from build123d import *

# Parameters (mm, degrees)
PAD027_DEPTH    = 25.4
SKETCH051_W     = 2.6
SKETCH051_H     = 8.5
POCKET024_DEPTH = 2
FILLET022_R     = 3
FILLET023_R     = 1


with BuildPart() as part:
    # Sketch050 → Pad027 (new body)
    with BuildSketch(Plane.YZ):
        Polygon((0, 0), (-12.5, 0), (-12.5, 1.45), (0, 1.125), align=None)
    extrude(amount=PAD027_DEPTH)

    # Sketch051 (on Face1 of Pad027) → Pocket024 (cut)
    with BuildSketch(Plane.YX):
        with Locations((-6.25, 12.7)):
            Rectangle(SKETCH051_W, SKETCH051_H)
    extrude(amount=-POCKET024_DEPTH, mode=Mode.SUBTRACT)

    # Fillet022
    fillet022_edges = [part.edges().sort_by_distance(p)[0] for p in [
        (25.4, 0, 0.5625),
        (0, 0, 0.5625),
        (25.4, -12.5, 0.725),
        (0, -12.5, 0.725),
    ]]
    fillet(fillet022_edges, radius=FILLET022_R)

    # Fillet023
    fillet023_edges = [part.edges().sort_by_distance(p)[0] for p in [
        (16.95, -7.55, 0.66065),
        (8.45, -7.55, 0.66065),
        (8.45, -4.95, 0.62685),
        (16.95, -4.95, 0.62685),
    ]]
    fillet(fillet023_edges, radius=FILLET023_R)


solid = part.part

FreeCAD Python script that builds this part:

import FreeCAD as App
import Part
import Sketcher
from FreeCAD import Vector


def edges_at(feature, points):
    """Names of the edges that pass closest to the given points."""
    edges = feature.Shape.Edges
    near = lambda p: min(range(len(edges)), key=lambda i: edges[i].distToShape(Part.Vertex(*p))[0])
    return sorted({f"Edge{near(p) + 1}" for p in points})

doc = App.newDocument("Part")
body = doc.addObject("PartDesign::Body", "Body")

sketch1 = doc.addObject("Sketcher::SketchObject", "Sketch")
body.addObject(sketch1)
sketch1.AttachmentSupport = (doc.YZ_Plane, [""])
sketch1.MapMode = "FlatFace"
sketch1.addGeometry(Part.LineSegment(Vector(-12.5, 0, 0), Vector(0, 0, 0)), False)
sketch1.addGeometry(Part.LineSegment(Vector(0, 0, 0), Vector(0, 1.1, 0)), False)
sketch1.addGeometry(Part.LineSegment(Vector(0, 1.1, 0), Vector(-12.5, 1.4, 0)), False)
sketch1.addGeometry(Part.LineSegment(Vector(-12.5, 1.4, 0), Vector(-12.5, 0, 0)), False)
sketch1.addConstraint(Sketcher.Constraint("Coincident", 0, 2, 1, 1))
sketch1.addConstraint(Sketcher.Constraint("Coincident", 1, 2, 2, 1))
sketch1.addConstraint(Sketcher.Constraint("Coincident", 2, 2, 3, 1))
sketch1.addConstraint(Sketcher.Constraint("Coincident", 3, 2, 0, 1))
sketch1.addConstraint(Sketcher.Constraint("Horizontal", 0))
sketch1.addConstraint(Sketcher.Constraint("Vertical", 1))
sketch1.addConstraint(Sketcher.Constraint("Vertical", 3))
sketch1.addConstraint(Sketcher.Constraint("Coincident", 0, 2, -1, 1))
sketch1.addConstraint(Sketcher.Constraint("DistanceX", 0, 1, 0, 2, 12.5))
sketch1.addConstraint(Sketcher.Constraint("DistanceY", 3, 2, 3, 1, 1.45))
sketch1.addConstraint(Sketcher.Constraint("DistanceY", 1, 1, 1, 2, 1.125))
pad1 = doc.addObject("PartDesign::Pad", "Pad")
body.addObject(pad1)
pad1.Profile = sketch1
pad1.Length = 25.4

sketch2 = doc.addObject("Sketcher::SketchObject", "Sketch001")
body.addObject(sketch2)
sketch2.AttachmentSupport = (doc.XY_Plane, [""])
sketch2.MapMode = "FlatFace"
sketch2.addGeometry(Part.LineSegment(Vector(16.9, -7.5, 0), Vector(8.4, -7.5, 0)), False)
sketch2.addGeometry(Part.LineSegment(Vector(8.4, -7.5, 0), Vector(8.4, -5, 0)), False)
sketch2.addGeometry(Part.LineSegment(Vector(8.4, -5, 0), Vector(16.9, -5, 0)), False)
sketch2.addGeometry(Part.LineSegment(Vector(16.9, -5, 0), Vector(16.9, -7.5, 0)), False)
sketch2.addConstraint(Sketcher.Constraint("Coincident", 0, 2, 1, 1))
sketch2.addConstraint(Sketcher.Constraint("Coincident", 1, 2, 2, 1))
sketch2.addConstraint(Sketcher.Constraint("Coincident", 2, 2, 3, 1))
sketch2.addConstraint(Sketcher.Constraint("Coincident", 3, 2, 0, 1))
sketch2.addConstraint(Sketcher.Constraint("Horizontal", 0))
sketch2.addConstraint(Sketcher.Constraint("Vertical", 1))
sketch2.addConstraint(Sketcher.Constraint("Horizontal", 2))
sketch2.addConstraint(Sketcher.Constraint("Vertical", 3))
sketch2.addConstraint(Sketcher.Constraint("DistanceX", 0, 2, 0, 1, 8.5))
sketch2.addConstraint(Sketcher.Constraint("DistanceY", 1, 1, 1, 2, 2.6))
sketch2.addConstraint(Sketcher.Constraint("DistanceX", -1, 1, 0, 2, 8.45))
sketch2.addConstraint(Sketcher.Constraint("DistanceY", 0, 2, -1, 1, 7.55))
pocket1 = doc.addObject("PartDesign::Pocket", "Pocket")
body.addObject(pocket1)
pocket1.Profile = sketch2
pocket1.Length = 2
pocket1.Reversed = True
doc.recompute()

fillet = doc.addObject("PartDesign::Fillet", "Fillet")
body.addObject(fillet)
fillet.Base = (pocket1, edges_at(pocket1, [
    (25.4, 0, 0.562),
    (0, 0, 0.562),
    (25.4, -12.5, 0.725),
    (0, -12.5, 0.725),
]))
fillet.Radius = 3
doc.recompute()

fillet2 = doc.addObject("PartDesign::Fillet", "Fillet001")
body.addObject(fillet2)
fillet2.Base = (fillet, edges_at(fillet, [
    (16.95, -7.55, 0.661),
    (8.45, -7.55, 0.661),
    (8.45, -4.95, 0.627),
    (16.95, -4.95, 0.627),
]))
fillet2.Radius = 1

doc.recompute()
